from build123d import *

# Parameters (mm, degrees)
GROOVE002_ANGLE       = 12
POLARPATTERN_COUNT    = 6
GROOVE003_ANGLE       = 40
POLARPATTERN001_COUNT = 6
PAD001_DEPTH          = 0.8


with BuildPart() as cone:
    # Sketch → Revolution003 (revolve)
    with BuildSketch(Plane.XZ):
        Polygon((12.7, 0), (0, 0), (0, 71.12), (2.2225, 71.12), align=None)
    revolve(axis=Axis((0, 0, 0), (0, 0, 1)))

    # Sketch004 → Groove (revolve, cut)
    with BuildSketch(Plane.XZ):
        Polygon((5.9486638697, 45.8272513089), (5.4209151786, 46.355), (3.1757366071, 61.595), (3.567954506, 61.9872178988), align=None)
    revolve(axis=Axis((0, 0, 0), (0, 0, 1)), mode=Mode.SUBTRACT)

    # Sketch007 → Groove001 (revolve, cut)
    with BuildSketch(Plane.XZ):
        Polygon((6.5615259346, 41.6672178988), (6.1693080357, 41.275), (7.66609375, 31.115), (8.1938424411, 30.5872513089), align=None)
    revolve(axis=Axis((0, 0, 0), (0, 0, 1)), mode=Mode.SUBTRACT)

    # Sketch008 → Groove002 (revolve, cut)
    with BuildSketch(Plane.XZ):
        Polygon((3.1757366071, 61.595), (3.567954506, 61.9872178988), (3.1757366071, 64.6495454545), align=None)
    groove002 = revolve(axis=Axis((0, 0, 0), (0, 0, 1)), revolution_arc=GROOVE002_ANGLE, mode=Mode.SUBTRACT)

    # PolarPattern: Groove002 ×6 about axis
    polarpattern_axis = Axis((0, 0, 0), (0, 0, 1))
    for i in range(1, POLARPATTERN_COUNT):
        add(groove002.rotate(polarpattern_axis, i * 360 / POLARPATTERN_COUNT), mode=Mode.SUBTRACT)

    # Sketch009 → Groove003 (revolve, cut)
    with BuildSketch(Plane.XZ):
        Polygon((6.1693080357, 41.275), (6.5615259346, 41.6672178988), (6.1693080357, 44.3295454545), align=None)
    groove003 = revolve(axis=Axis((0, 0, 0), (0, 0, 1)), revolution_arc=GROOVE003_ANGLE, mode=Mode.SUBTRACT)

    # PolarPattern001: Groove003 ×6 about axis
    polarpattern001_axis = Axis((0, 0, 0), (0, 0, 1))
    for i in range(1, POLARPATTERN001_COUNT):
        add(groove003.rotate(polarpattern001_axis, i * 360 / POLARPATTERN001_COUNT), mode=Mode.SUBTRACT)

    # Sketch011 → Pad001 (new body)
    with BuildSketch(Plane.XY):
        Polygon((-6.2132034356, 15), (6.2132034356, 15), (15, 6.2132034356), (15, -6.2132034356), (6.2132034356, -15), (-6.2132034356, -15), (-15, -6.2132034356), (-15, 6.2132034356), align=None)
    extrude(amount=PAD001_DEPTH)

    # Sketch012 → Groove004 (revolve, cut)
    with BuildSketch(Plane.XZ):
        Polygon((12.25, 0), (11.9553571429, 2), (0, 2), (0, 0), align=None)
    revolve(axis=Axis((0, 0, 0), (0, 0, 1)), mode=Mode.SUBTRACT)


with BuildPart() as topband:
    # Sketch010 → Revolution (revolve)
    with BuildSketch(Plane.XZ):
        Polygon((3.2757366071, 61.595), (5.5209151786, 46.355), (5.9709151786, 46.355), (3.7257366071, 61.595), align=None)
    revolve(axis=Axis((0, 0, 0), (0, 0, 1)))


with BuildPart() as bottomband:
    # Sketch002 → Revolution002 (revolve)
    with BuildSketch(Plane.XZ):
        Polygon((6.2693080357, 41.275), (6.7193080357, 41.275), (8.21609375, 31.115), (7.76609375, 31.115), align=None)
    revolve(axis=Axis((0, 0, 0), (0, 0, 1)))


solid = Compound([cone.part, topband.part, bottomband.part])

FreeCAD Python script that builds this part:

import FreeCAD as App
import Part
import Sketcher
from FreeCAD import Vector
Q = App.Units.Quantity


def add_polygon(sketch, points):
    """Adds a closed chain of lines whose ends are joined by coincident constraints."""
    first, n = sketch.GeometryCount, len(points)
    for a, b in zip(points, points[1:] + points[:1]):
        sketch.addGeometry(Part.LineSegment(App.Vector(*a, 0), App.Vector(*b, 0)), False)
    for i in range(n):
        sketch.addConstraint(Sketcher.Constraint("Coincident", first + i, 2, first + (i + 1) % n, 1))

doc = App.newDocument("Part")
params = doc.addObject("Spreadsheet::Sheet", "Params")
for row, (alias, value) in enumerate([
    ("sketch1_width", "12.7 mm"),
    ("sketch1_height", "71.12 mm"),
    ("revolution_angle", "360 deg"),
    ("groove_angle", "360 deg"),
    ("groove2_angle", "360 deg"),
    ("groove3_angle", "12 deg"),
    ("groove4_angle", "40 deg"),
    ("pad1_length", "0.8 mm"),
    ("sketch7_height", "2 mm"),
    ("sketch7_width", "12.25 mm"),
    ("groove5_angle", "360 deg"),
    ("sketch8_width", "0.45 mm"),
    ("revolution2_angle", "360 deg"),
    ("sketch9_width", "0.45 mm"),
    ("revolution3_angle", "360 deg"),
], start=1):
    params.set(f"A{row}", alias)
    params.set(f"B{row}", "=" + value)
    params.setAlias(f"B{row}", alias)

body = doc.addObject("PartDesign::Body", "Body")

# Sketch on XZ plane
sketch1 = doc.addObject("Sketcher::SketchObject", "Sketch")
body.addObject(sketch1)
sketch1.AttachmentSupport = (doc.XZ_Plane, [""])
sketch1.MapMode = "FlatFace"
add_polygon(sketch1, [(0, 0), (12.7, 0), (2.2225, 71.12), (0, 71.12)])  # lines 0-3
sketch1.addConstraint(Sketcher.Constraint("Horizontal", 0))
sketch1.addConstraint(Sketcher.Constraint("Horizontal", 2))
sketch1.addConstraint(Sketcher.Constraint("Vertical", 3))
sketch1.addConstraint(Sketcher.Constraint("Coincident", 3, 2, -1, 1))
sketch1.addConstraint(Sketcher.Constraint("DistanceX", 0, 1, 0, 2, 12.7))
sketch1.addConstraint(Sketcher.Constraint("DistanceY", 3, 2, 3, 1, 71.12))
sketch1.addConstraint(Sketcher.Constraint("DistanceX", 2, 2, 2, 1, 2.2225))
sketch1.setExpression("Constraints[8]", "Params.sketch1_width")
sketch1.setExpression("Constraints[9]", "Params.sketch1_height")
revolution = doc.addObject("PartDesign::Revolution", "Revolution")
body.addObject(revolution)
revolution.Profile = sketch1
revolution.ReferenceAxis = (sketch1, ["V_Axis"])
revolution.setExpression("Angle", "Params.revolution_angle")

# Sketch on XZ plane
sketch2 = doc.addObject("Sketcher::SketchObject", "Sketch001")
body.addObject(sketch2)
sketch2.AttachmentSupport = (doc.XZ_Plane, [""])
sketch2.MapMode = "FlatFace"
add_polygon(sketch2, [(5.420915, 46.355), (5.948664, 45.827251), (3.567955, 61.987218), (3.175737, 61.595)])  # lines 0-3
sketch2.addConstraint(Sketcher.Constraint("Perpendicular", 0, 2))
sketch2.addConstraint(Sketcher.Constraint("Parallel", 1, 3))
sketch2.addConstraint(Sketcher.Constraint("Angle", 0, Q("-45 deg")))
sketch2.addConstraint(Sketcher.Constraint("DistanceY", 3, 2, 2, 2, 15.24))
sketch2.addConstraint(Sketcher.Constraint("DistanceY", -1, 1, 2, 2, 61.595))
sketch2.addConstraint(Sketcher.Constraint("Distance", 0, 0.746349))
sketch2.addConstraint(Sketcher.Constraint("Distance", 1, 16.33439))
sketch2.addConstraint(Sketcher.Constraint("DistanceX", -1, 1, 0, 2, 5.948664))
groove = doc.addObject("PartDesign::Groove", "Groove")
body.addObject(groove)
groove.Profile = sketch2
groove.ReferenceAxis = (sketch2, ["V_Axis"])
groove.setExpression("Angle", "Params.groove_angle")

# Sketch on XZ plane
sketch3 = doc.addObject("Sketcher::SketchObject", "Sketch002")
body.addObject(sketch3)
sketch3.AttachmentSupport = (doc.XZ_Plane, [""])
sketch3.MapMode = "FlatFace"
add_polygon(sketch3, [(6.561526, 41.667218), (6.169308, 41.275), (7.666094, 31.115), (8.193842, 30.587251)])  # lines 0-3
sketch3.addConstraint(Sketcher.Constraint("Perpendicular", 0, 2))
sketch3.addConstraint(Sketcher.Constraint("Parallel", 1, 3))
sketch3.addConstraint(Sketcher.Constraint("Angle", 0, Q("-135 deg")))
sketch3.addConstraint(Sketcher.Constraint("DistanceY", 1, 2, 0, 2, 10.16))
sketch3.addConstraint(Sketcher.Constraint("DistanceY", -1, 1, 0, 2, 41.275))
sketch3.addConstraint(Sketcher.Constraint("Distance", 0, 0.55468))
sketch3.addConstraint(Sketcher.Constraint("Distance", 2, 0.746349))
sketch3.addConstraint(Sketcher.Constraint("DistanceX", -1, 1, 0, 2, 6.169308))
groove2 = doc.addObject("PartDesign::Groove", "Groove001")
body.addObject(groove2)
groove2.Profile = sketch3
groove2.ReferenceAxis = (sketch3, ["V_Axis"])
groove2.setExpression("Angle", "Params.groove2_angle")

# Sketch on XZ plane
sketch4 = doc.addObject("Sketcher::SketchObject", "Sketch003")
body.addObject(sketch4)
sketch4.AttachmentSupport = (doc.XZ_Plane, [""])
sketch4.MapMode = "FlatFace"
add_polygon(sketch4, [(3.175737, 61.595), (3.567955, 61.987218), (3.175737, 64.649545)])  # lines 0-2
sketch4.addConstraint(Sketcher.Constraint("Vertical", 2))
sketch4.addConstraint(Sketcher.Constraint("Angle", 0, Q("45 deg")))
sketch4.addConstraint(Sketcher.Constraint("DistanceY", -1, 1, 2, 2, 61.595))
sketch4.addConstraint(Sketcher.Constraint("Distance", 0, 0.55468))
sketch4.addConstraint(Sketcher.Constraint("DistanceY", 2, 2, 2, 1, 3.054545))
sketch4.addConstraint(Sketcher.Constraint("DistanceX", -1, 1, 0, 2, 3.567955))
groove3 = doc.addObject("PartDesign::Groove", "Groove002")
body.addObject(groove3)
groove3.Profile = sketch4
groove3.ReferenceAxis = (sketch4, ["V_Axis"])
groove3.setExpression("Angle", "Params.groove3_angle")
doc.recompute()

polarpattern = doc.addObject("PartDesign::PolarPattern", "PolarPattern")
body.addObject(polarpattern)
polarpattern.Originals = [groove3]
polarpattern.Axis = (doc.Z_Axis, [""])
polarpattern.Angle = 360
polarpattern.Occurrences = 6
body.Tip = polarpattern

# Sketch on XZ plane
sketch5 = doc.addObject("Sketcher::SketchObject", "Sketch004")
body.addObject(sketch5)
sketch5.AttachmentSupport = (doc.XZ_Plane, [""])
sketch5.MapMode = "FlatFace"
add_polygon(sketch5, [(6.169308, 41.275), (6.561526, 41.667218), (6.169308, 44.329545)])  # lines 0-2
sketch5.addConstraint(Sketcher.Constraint("Vertical", 2))
sketch5.addConstraint(Sketcher.Constraint("Angle", 0, Q("45 deg")))
sketch5.addConstraint(Sketcher.Constraint("DistanceY", -1, 1, 2, 2, 41.275))
sketch5.addConstraint(Sketcher.Constraint("Distance", 0, 0.55468))
sketch5.addConstraint(Sketcher.Constraint("DistanceY", 2, 2, 2, 1, 3.054545))
sketch5.addConstraint(Sketcher.Constraint("DistanceX", -1, 1, 1, 2, 6.169308))
groove4 = doc.addObject("PartDesign::Groove", "Groove003")
body.addObject(groove4)
groove4.Profile = sketch5
groove4.ReferenceAxis = (sketch5, ["V_Axis"])
groove4.setExpression("Angle", "Params.groove4_angle")
doc.recompute()

polarpattern2 = doc.addObject("PartDesign::PolarPattern", "PolarPattern001")
body.addObject(polarpattern2)
polarpattern2.Originals = [groove4]
polarpattern2.Axis = (doc.Z_Axis, [""])
polarpattern2.Angle = 360
polarpattern2.Occurrences = 6
body.Tip = polarpattern2

# Sketch on XY plane
sketch6 = doc.addObject("Sketcher::SketchObject", "Sketch005")
body.addObject(sketch6)
sketch6.AttachmentSupport = (doc.XY_Plane, [""])
sketch6.MapMode = "FlatFace"
add_polygon(sketch6, [(6.213203, 15), (-6.213203, 15), (-15, 6.213203), (-15, -6.213203), (-6.213203, -15), (6.213203, -15), (15, -6.213203), (15, 6.213203)])  # lines 0-7
sketch6.addConstraint(Sketcher.Constraint("Horizontal", 0))
sketch6.addConstraint(Sketcher.Constraint("Vertical", 2))
sketch6.addConstraint(Sketcher.Constraint("Horizontal", 4))
sketch6.addConstraint(Sketcher.Constraint("Vertical", 6))
sketch6.addConstraint(Sketcher.Constraint("Symmetric", 0, 2, 4, 2, -1, 1))
sketch6.addConstraint(Sketcher.Constraint("Symmetric", 1, 2, 5, 2, -1, 1))
sketch6.addConstraint(Sketcher.Constraint("Perpendicular", 1, 3))
sketch6.addConstraint(Sketcher.Constraint("Perpendicular", 5, 7))
sketch6.addConstraint(Sketcher.Constraint("Horizontal", 2, 2, 5, 2))
sketch6.addConstraint(Sketcher.Constraint("Horizontal", 1, 2, 6, 2))
sketch6.addConstraint(Sketcher.Constraint("Vertical", 0, 2, 3, 2))
sketch6.addConstraint(Sketcher.Constraint("Equal", 4, 2))
sketch6.addConstraint(Sketcher.Constraint("DistanceY", -1, 1, 0, 2, 15.0))
sketch6.addConstraint(Sketcher.Constraint("DistanceX", 0, 2, 0, 1, 12.426407))
pad1 = doc.addObject("PartDesign::Pad", "Pad")
body.addObject(pad1)
pad1.Profile = sketch6
pad1.setExpression("Length", "Params.pad1_length")

# Sketch on XZ plane
sketch7 = doc.addObject("Sketcher::SketchObject", "Sketch006")
body.addObject(sketch7)
sketch7.AttachmentSupport = (doc.XZ_Plane, [""])
sketch7.MapMode = "FlatFace"
add_polygon(sketch7, [(12.25, 0), (11.955357, 2), (0, 2), (0, 0)])  # lines 0-3
sketch7.addConstraint(Sketcher.Constraint("Horizontal", 1))
sketch7.addConstraint(Sketcher.Constraint("Vertical", 2))
sketch7.addConstraint(Sketcher.Constraint("Horizontal", 3))
sketch7.addConstraint(Sketcher.Constraint("Coincident", 2, 2, -1, 1))
sketch7.addConstraint(Sketcher.Constraint("DistanceY", 2, 2, 2, 1, 2.0))
sketch7.addConstraint(Sketcher.Constraint("DistanceX", 3, 1, 3, 2, 12.25))
sketch7.addConstraint(Sketcher.Constraint("DistanceX", 1, 2, 1, 1, 11.955357))
sketch7.setExpression("Constraints[8]", "Params.sketch7_height")
sketch7.setExpression("Constraints[9]", "Params.sketch7_width")
groove5 = doc.addObject("PartDesign::Groove", "Groove004")
body.addObject(groove5)
groove5.Profile = sketch7
groove5.ReferenceAxis = (sketch7, ["V_Axis"])
groove5.setExpression("Angle", "Params.groove5_angle")
body2 = doc.addObject("PartDesign::Body", "Body001")

# Sketch on XZ plane
sketch8 = doc.addObject("Sketcher::SketchObject", "Sketch007")
body2.addObject(sketch8)
sketch8.AttachmentSupport = (doc.getObject("XZ_Plane001"), [""])
sketch8.MapMode = "FlatFace"
add_polygon(sketch8, [(3.275737, 61.595), (5.520915, 46.355), (5.970915, 46.355), (3.725737, 61.595)])  # lines 0-3
sketch8.addConstraint(Sketcher.Constraint("Horizontal", 1))
sketch8.addConstraint(Sketcher.Constraint("Horizontal", 3))
sketch8.addConstraint(Sketcher.Constraint("Parallel", 0, 2))
sketch8.addConstraint(Sketcher.Constraint("DistanceX", 1, 1, 1, 2, 0.45))
sketch8.addConstraint(Sketcher.Constraint("DistanceY", 0, 2, 2, 2, 15.24))
sketch8.addConstraint(Sketcher.Constraint("DistanceY", -1, 1, 0, 2, 46.355))
sketch8.addConstraint(Sketcher.Constraint("DistanceX", 2, 2, 0, 2, 1.795179))
sketch8.addConstraint(Sketcher.Constraint("DistanceX", -1, 1, 0, 2, 5.520915))
sketch8.setExpression("Constraints[7]", "Params.sketch8_width")
revolution2 = doc.addObject("PartDesign::Revolution", "Revolution001")
body2.addObject(revolution2)
revolution2.Profile = sketch8
revolution2.ReferenceAxis = (sketch8, ["V_Axis"])
revolution2.setExpression("Angle", "Params.revolution2_angle")
body3 = doc.addObject("PartDesign::Body", "Body002")

# Sketch on XZ plane
sketch9 = doc.addObject("Sketcher::SketchObject", "Sketch008")
body3.addObject(sketch9)
sketch9.AttachmentSupport = (doc.getObject("XZ_Plane002"), [""])
sketch9.MapMode = "FlatFace"
add_polygon(sketch9, [(6.719308, 41.275), (6.269308, 41.275), (7.766094, 31.115), (8.216094, 31.115)])  # lines 0-3
sketch9.addConstraint(Sketcher.Constraint("Horizontal", 0))
sketch9.addConstraint(Sketcher.Constraint("Horizontal", 2))
sketch9.addConstraint(Sketcher.Constraint("Parallel", 1, 3))
sketch9.addConstraint(Sketcher.Constraint("DistanceX", 0, 2, 0, 1, 0.45))
sketch9.addConstraint(Sketcher.Constraint("DistanceY", 1, 2, 0, 2, 10.16))
sketch9.addConstraint(Sketcher.Constraint("DistanceY", -1, 1, 0, 2, 41.275))
sketch9.addConstraint(Sketcher.Constraint("DistanceX", -1, 1, 0, 2, 6.269308))
sketch9.addConstraint(Sketcher.Constraint("Distance", 1, 10.269662))
sketch9.setExpression("Constraints[7]", "Params.sketch9_width")
revolution3 = doc.addObject("PartDesign::Revolution", "Revolution002")
body3.addObject(revolution3)
revolution3.Profile = sketch9
revolution3.ReferenceAxis = (sketch9, ["V_Axis"])
revolution3.setExpression("Angle", "Params.revolution3_angle")

doc.recompute()
